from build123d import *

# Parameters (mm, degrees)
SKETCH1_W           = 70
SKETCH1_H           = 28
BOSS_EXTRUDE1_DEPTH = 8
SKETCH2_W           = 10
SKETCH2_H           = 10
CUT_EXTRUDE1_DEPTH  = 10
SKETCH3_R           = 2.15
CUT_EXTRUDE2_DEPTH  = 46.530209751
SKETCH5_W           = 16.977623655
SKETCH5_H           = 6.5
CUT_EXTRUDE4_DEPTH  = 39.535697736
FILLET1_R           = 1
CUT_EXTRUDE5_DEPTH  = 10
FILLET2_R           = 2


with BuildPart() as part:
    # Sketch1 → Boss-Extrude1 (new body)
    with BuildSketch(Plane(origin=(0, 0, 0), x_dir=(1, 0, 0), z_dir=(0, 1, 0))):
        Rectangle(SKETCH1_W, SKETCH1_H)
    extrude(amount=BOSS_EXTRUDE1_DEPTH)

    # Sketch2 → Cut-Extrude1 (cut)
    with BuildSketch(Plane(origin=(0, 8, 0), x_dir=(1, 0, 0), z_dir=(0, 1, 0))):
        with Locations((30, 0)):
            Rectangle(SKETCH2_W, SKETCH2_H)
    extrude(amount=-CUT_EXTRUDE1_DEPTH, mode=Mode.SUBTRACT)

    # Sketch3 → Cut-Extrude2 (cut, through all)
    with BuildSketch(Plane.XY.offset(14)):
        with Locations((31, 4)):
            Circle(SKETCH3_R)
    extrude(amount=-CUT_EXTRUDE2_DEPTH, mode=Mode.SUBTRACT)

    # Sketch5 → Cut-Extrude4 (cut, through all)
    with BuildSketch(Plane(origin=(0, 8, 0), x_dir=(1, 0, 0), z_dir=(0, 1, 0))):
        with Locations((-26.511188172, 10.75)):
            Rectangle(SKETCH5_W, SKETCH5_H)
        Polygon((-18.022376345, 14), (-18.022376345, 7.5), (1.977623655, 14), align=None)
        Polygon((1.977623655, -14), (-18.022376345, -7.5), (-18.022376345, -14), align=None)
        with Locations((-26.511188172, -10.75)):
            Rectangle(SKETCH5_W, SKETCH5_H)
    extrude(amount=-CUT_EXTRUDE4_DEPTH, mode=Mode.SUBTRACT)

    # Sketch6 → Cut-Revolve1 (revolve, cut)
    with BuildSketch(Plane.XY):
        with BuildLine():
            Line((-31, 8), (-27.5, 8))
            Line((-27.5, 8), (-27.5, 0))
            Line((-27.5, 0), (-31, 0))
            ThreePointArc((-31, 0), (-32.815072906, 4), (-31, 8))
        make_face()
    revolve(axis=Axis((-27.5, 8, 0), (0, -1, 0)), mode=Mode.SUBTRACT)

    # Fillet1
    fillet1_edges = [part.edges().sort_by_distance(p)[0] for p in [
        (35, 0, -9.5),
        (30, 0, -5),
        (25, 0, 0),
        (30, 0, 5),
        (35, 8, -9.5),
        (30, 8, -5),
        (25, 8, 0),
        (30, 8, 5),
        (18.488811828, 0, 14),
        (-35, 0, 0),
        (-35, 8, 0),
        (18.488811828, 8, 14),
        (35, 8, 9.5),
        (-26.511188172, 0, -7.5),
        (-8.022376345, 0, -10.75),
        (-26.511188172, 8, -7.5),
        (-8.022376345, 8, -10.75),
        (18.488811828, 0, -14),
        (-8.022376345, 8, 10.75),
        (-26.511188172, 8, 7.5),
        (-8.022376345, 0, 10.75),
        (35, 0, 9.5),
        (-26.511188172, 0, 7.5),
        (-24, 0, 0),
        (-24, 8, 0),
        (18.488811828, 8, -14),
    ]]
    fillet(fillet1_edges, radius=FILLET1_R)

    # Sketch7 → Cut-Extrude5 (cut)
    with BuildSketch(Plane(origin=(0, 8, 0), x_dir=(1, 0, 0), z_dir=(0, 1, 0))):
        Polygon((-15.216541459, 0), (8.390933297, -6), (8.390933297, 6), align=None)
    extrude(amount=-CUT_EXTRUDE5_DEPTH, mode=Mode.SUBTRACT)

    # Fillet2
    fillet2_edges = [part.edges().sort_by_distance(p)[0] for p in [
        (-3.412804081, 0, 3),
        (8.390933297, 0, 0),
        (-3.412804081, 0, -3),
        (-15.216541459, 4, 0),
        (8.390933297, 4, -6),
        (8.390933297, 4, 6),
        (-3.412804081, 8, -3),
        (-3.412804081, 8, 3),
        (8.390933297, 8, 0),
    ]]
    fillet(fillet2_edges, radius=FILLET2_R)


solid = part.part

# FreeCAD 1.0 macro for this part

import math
import FreeCAD as App
import Part
import Sketcher
from FreeCAD import Vector


def edges_at(feature, points):
    """Names of the edges that pass closest to the given points."""
    edges = feature.Shape.Edges
    near = lambda p: min(range(len(edges)), key=lambda i: edges[i].distToShape(Part.Vertex(*p))[0])
    return sorted({f"Edge{near(p) + 1}" for p in points})


def add_polygon(sketch, points):
    """Adds a closed chain of lines whose ends are joined by coincident constraints."""
    first, n = sketch.GeometryCount, len(points)
    for a, b in zip(points, points[1:] + points[:1]):
        sketch.addGeometry(Part.LineSegment(App.Vector(*a, 0), App.Vector(*b, 0)), False)
    for i in range(n):
        sketch.addConstraint(Sketcher.Constraint("Coincident", first + i, 2, first + (i + 1) % n, 1))

doc = App.newDocument("Part")
body = doc.addObject("PartDesign::Body", "Body")

# Sketch on XZ plane
sketch1 = doc.addObject("Sketcher::SketchObject", "Sketch")
body.addObject(sketch1)
sketch1.AttachmentSupport = (doc.XZ_Plane, [""])
sketch1.MapMode = "FlatFace"
add_polygon(sketch1, [(-35, -14), (-35, 14), (35, 14), (35, -14)])  # lines 0-3
sketch1.addConstraint(Sketcher.Constraint("Vertical", 0))
sketch1.addConstraint(Sketcher.Constraint("Horizontal", 1))
sketch1.addConstraint(Sketcher.Constraint("Vertical", 2))
sketch1.addConstraint(Sketcher.Constraint("Horizontal", 3))
sketch1.addConstraint(Sketcher.Constraint("Symmetric", 0, 2, 2, 2, -1, 1))
sketch1.addConstraint(Sketcher.Constraint("DistanceX", 1, 1, 1, 2, 70.0))
sketch1.addConstraint(Sketcher.Constraint("DistanceY", 0, 1, 0, 2, 28.0))
pad1 = doc.addObject("PartDesign::Pad", "Pad")
body.addObject(pad1)
pad1.Profile = sketch1
pad1.Length = 8
pad1.Reversed = True

# Sketch on XZ plane
sketch2 = doc.addObject("Sketcher::SketchObject", "Sketch001")
body.addObject(sketch2)
sketch2.AttachmentSupport = (doc.XZ_Plane, [""])
sketch2.MapMode = "FlatFace"
sketch2.AttachmentOffset = App.Placement(Vector(0, 0, -8), App.Rotation())
add_polygon(sketch2, [(25, -5), (25, 5), (35, 5), (35, -5)])  # lines 0-3
sketch2.addConstraint(Sketcher.Constraint("Vertical", 0))
sketch2.addConstraint(Sketcher.Constraint("Horizontal", 1))
sketch2.addConstraint(Sketcher.Constraint("Vertical", 2))
sketch2.addConstraint(Sketcher.Constraint("Horizontal", 3))
sketch2.addConstraint(Sketcher.Constraint("Equal", 3, 0))
sketch2.addConstraint(Sketcher.Constraint("DistanceX", 1, 1, 1, 2, 10.0))
sketch2.addConstraint(Sketcher.Constraint("DistanceX", -1, 1, 0, 2, 25.0))
sketch2.addConstraint(Sketcher.Constraint("DistanceY", -1, 1, 0, 2, 5.0))
pocket1 = doc.addObject("PartDesign::Pocket", "Pocket")
body.addObject(pocket1)
pocket1.Profile = sketch2
pocket1.Length = 10
pocket1.Reversed = True

# Sketch on XY plane
sketch3 = doc.addObject("Sketcher::SketchObject", "Sketch002")
body.addObject(sketch3)
sketch3.AttachmentSupport = (doc.XY_Plane, [""])
sketch3.MapMode = "FlatFace"
sketch3.AttachmentOffset = App.Placement(Vector(0, 0, 14), App.Rotation())
sketch3.addGeometry(Part.Circle(Vector(31, 4, 0), Vector(0, 0, 1), 2.15), False)
sketch3.addConstraint(Sketcher.Constraint("Diameter", 0, 4.3))
sketch3.addConstraint(Sketcher.Constraint("DistanceX", -1, 1, 0, 3, 31.0))
sketch3.addConstraint(Sketcher.Constraint("DistanceY", -1, 1, 0, 3, 4.0))
pocket2 = doc.addObject("PartDesign::Pocket", "Pocket001")
body.addObject(pocket2)
pocket2.Profile = sketch3
pocket2.Type = "ThroughAll"

# Sketch on XZ plane
sketch4 = doc.addObject("Sketcher::SketchObject", "Sketch003")
body.addObject(sketch4)
sketch4.AttachmentSupport = (doc.XZ_Plane, [""])
sketch4.MapMode = "FlatFace"
sketch4.AttachmentOffset = App.Placement(Vector(0, 0, -8), App.Rotation())
add_polygon(sketch4, [(-35, -14), (-35, -7.5), (-18.022376, -7.5), (1.977624, -14)])  # lines 0-3
add_polygon(sketch4, [(1.977624, 14), (-18.022376, 7.5), (-35, 7.5), (-35, 14)])  # lines 4-7
sketch4.addConstraint(Sketcher.Constraint("Vertical", 0))
sketch4.addConstraint(Sketcher.Constraint("Horizontal", 1))
sketch4.addConstraint(Sketcher.Constraint("Horizontal", 3))
sketch4.addConstraint(Sketcher.Constraint("Horizontal", 5))
sketch4.addConstraint(Sketcher.Constraint("Vertical", 6))
sketch4.addConstraint(Sketcher.Constraint("Horizontal", 7))
sketch4.addConstraint(Sketcher.Constraint("Symmetric", 1, 2, 4, 2, -1))
sketch4.addConstraint(Sketcher.Constraint("Symmetric", 3, 2, 6, 2, -1))
sketch4.addConstraint(Sketcher.Constraint("Vertical", 2, 2, 7, 2))
sketch4.addConstraint(Sketcher.Constraint("DistanceY", 0, 1, 0, 2, 6.5))
sketch4.addConstraint(Sketcher.Constraint("DistanceX", 0, 2, -1, 1, 35.0))
sketch4.addConstraint(Sketcher.Constraint("DistanceY", 2, 2, -1, 1, 14.0))
sketch4.addConstraint(Sketcher.Constraint("DistanceX", 1, 2, 2, 2, 20.0))
sketch4.addConstraint(Sketcher.Constraint("DistanceX", 1, 1, 1, 2, 16.977624))
pocket3 = doc.addObject("PartDesign::Pocket", "Pocket002")
body.addObject(pocket3)
pocket3.Profile = sketch4
pocket3.Type = "ThroughAll"
pocket3.Reversed = True

# Sketch on XY plane
sketch5 = doc.addObject("Sketcher::SketchObject", "Sketch004")
body.addObject(sketch5)
sketch5.AttachmentSupport = (doc.XY_Plane, [""])
sketch5.MapMode = "FlatFace"
sketch5.addGeometry(Part.LineSegment(Vector(-27.5, 8, 0), Vector(-31, 8, 0)), False)
sketch5.addGeometry(Part.ArcOfCircle(Part.Circle(Vector(-27.5, 4, 0), Vector(0, 0, 1), 5.315073), math.radians(131.185925), math.radians(228.814075)), False)
sketch5.addGeometry(Part.LineSegment(Vector(-31, 0, 0), Vector(-27.5, 0, 0)), False)
sketch5.addGeometry(Part.LineSegment(Vector(-27.5, 0, 0), Vector(-27.5, 8, 0)), False)
sketch5.addGeometry(Part.LineSegment(Vector(-27.5, 8, 0), Vector(-27.5, 0, 0)), True)  # axis
sketch5.addConstraint(Sketcher.Constraint("Coincident", 0, 2, 1, 1))
sketch5.addConstraint(Sketcher.Constraint("Coincident", 1, 2, 2, 1))
sketch5.addConstraint(Sketcher.Constraint("Coincident", 2, 2, 3, 1))
sketch5.addConstraint(Sketcher.Constraint("Coincident", 3, 2, 0, 1))
sketch5.addConstraint(Sketcher.Constraint("Horizontal", 0))
sketch5.addConstraint(Sketcher.Constraint("Horizontal", 2))
sketch5.addConstraint(Sketcher.Constraint("Vertical", 3))
sketch5.addConstraint(Sketcher.Constraint("Vertical", 4))
sketch5.addConstraint(Sketcher.Constraint("Coincident", 4, 1, 3, 2))
sketch5.addConstraint(Sketcher.Constraint("PointOnObject", 1, 2, -1))
sketch5.addConstraint(Sketcher.Constraint("PointOnObject", 4, 2, -1))
sketch5.addConstraint(Sketcher.Constraint("Vertical", 0, 2, 1, 2))
sketch5.addConstraint(Sketcher.Constraint("Vertical", 1, 3, 2, 2))
sketch5.addConstraint(Sketcher.Constraint("DistanceY", 3, 1, 3, 2, 8.0))
sketch5.addConstraint(Sketcher.Constraint("DistanceX", 0, 2, 0, 1, 3.5))
sketch5.addConstraint(Sketcher.Constraint("DistanceX", 0, 2, -1, 1, 31.0))
groove = doc.addObject("PartDesign::Groove", "Groove")
body.addObject(groove)
groove.Profile = sketch5
groove.ReferenceAxis = (sketch5, ["Axis0"])
groove.Angle = 360
doc.recompute()

fillet = doc.addObject("PartDesign::Fillet", "Fillet")
body.addObject(fillet)
fillet.Base = (groove, edges_at(groove, [
    (35, 0, -9.5),
    (30, 0, -5),
    (25, 0, 0),
    (30, 0, 5),
    (35, 8, -9.5),
    (30, 8, -5),
    (25, 8, 0),
    (30, 8, 5),
    (18.489, 0, 14),
    (-35, 0, 0),
    (-35, 8, 0),
    (18.489, 8, 14),
    (35, 8, 9.5),
    (-26.511, 0, -7.5),
    (-8.022, 0, -10.75),
    (-26.511, 8, -7.5),
    (-8.022, 8, -10.75),
    (18.489, 0, -14),
    (-8.022, 8, 10.75),
    (-26.511, 8, 7.5),
    (-8.022, 0, 10.75),
    (35, 0, 9.5),
    (-26.511, 0, 7.5),
    (-24, 0, 0),
    (-24, 8, 0),
    (18.489, 8, -14),
]))
fillet.Radius = 1

# Sketch on XZ plane
sketch6 = doc.addObject("Sketcher::SketchObject", "Sketch005")
body.addObject(sketch6)
sketch6.AttachmentSupport = (doc.XZ_Plane, [""])
sketch6.MapMode = "FlatFace"
sketch6.AttachmentOffset = App.Placement(Vector(0, 0, -8), App.Rotation())
add_polygon(sketch6, [(-15.216541, 0), (8.390933, 6), (8.390933, -6)])  # lines 0-2
sketch6.addConstraint(Sketcher.Constraint("Vertical", 1))
sketch6.addConstraint(Sketcher.Constraint("PointOnObject", 2, 2, -1))
sketch6.addConstraint(Sketcher.Constraint("Equal", 0, 2))
sketch6.addConstraint(Sketcher.Constraint("DistanceY", 1, 2, 1, 1, 12.0))
sketch6.addConstraint(Sketcher.Constraint("DistanceX", 2, 2, -1, 1, 15.216541))
sketch6.addConstraint(Sketcher.Constraint("Distance", 0, 24.358014))
pocket4 = doc.addObject("PartDesign::Pocket", "Pocket003")
body.addObject(pocket4)
pocket4.Profile = sketch6
pocket4.Length = 10
pocket4.Reversed = True
doc.recompute()

fillet2 = doc.addObject("PartDesign::Fillet", "Fillet001")
body.addObject(fillet2)
fillet2.Base = (pocket4, edges_at(pocket4, [
    (-3.413, 0, 3),
    (8.391, 0, 0),
    (-3.413, 0, -3),
    (-15.217, 4, 0),
    (8.391, 4, -6),
    (8.391, 4, 6),
    (-3.413, 8, -3),
    (-3.413, 8, 3),
    (8.391, 8, 0),
]))
fillet2.Radius = 2

doc.recompute()
